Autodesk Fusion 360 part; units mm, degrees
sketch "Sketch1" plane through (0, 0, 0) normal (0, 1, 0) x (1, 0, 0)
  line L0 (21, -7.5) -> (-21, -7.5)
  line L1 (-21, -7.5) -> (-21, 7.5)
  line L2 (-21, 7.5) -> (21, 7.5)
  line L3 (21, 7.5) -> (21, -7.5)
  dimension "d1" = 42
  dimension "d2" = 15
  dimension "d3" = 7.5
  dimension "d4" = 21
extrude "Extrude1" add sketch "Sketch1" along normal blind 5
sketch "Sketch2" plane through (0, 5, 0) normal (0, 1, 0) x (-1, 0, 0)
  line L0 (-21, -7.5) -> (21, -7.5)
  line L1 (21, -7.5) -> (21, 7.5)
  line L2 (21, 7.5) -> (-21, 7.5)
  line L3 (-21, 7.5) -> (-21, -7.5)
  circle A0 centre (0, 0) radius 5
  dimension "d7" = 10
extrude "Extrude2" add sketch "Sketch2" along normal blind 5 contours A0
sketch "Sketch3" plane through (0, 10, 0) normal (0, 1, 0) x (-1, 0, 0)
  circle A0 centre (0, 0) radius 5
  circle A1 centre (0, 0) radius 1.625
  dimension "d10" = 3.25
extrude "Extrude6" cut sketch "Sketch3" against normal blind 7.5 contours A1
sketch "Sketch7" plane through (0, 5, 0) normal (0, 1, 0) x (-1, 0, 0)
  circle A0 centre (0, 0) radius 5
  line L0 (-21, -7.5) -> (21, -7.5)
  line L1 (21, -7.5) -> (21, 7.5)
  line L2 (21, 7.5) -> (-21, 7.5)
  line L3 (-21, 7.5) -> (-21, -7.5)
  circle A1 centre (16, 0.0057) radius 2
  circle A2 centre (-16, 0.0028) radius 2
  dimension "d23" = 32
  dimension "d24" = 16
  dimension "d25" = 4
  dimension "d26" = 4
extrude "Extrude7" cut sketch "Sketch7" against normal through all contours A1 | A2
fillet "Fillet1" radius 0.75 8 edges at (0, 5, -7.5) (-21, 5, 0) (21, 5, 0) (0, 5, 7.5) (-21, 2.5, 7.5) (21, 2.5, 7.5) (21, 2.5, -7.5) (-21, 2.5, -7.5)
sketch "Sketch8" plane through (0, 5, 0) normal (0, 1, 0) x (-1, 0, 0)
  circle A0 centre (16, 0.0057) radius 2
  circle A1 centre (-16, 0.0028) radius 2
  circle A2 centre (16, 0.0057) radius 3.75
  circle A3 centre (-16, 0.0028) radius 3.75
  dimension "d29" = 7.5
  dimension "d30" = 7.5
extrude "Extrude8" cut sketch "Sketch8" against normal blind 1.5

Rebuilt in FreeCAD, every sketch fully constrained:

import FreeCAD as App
import Part
import Sketcher

V = App.Vector


def edges_at(feature, points):
    """Names of the edges that pass closest to the given points."""
    edges = feature.Shape.Edges
    near = lambda p: min(range(len(edges)), key=lambda i: edges[i].distToShape(Part.Vertex(*p))[0])
    return sorted({f"Edge{near(p) + 1}" for p in points})


def add_polygon(sketch, points):
    """Adds a closed chain of lines whose ends are joined by coincident constraints."""
    first, n = sketch.GeometryCount, len(points)
    for a, b in zip(points, points[1:] + points[:1]):
        sketch.addGeometry(Part.LineSegment(App.Vector(*a, 0), App.Vector(*b, 0)), False)
    for i in range(n):
        sketch.addConstraint(Sketcher.Constraint("Coincident", first + i, 2, first + (i + 1) % n, 1))

doc = App.newDocument("Part")
body = doc.addObject("PartDesign::Body", "Body")

sketch1 = body.newObject("Sketcher::SketchObject", "Sketch")
sketch1.AttachmentSupport = (doc.getObject("XZ_Plane"), [""])
sketch1.MapMode = "FlatFace"
add_polygon(sketch1, [(-21, 8), (21, 8), (21, -8), (-21, -8)])
sketch1.addConstraint([
    Sketcher.Constraint("Horizontal", 0),
    Sketcher.Constraint("Vertical", 1),
    Sketcher.Constraint("Horizontal", 2),
    Sketcher.Constraint("Vertical", 3),
    Sketcher.Constraint("Symmetric", 0, 2, 2, 2, -1, 1),
    Sketcher.Constraint("DistanceX", 0, 1, 0, 2, 42.0),
    Sketcher.Constraint("DistanceY", 1, 2, 1, 1, 15.0),
])
pad1 = body.newObject("PartDesign::Pad", "Pad")
pad1.Profile = sketch1
pad1.Length = 5
pad1.Reversed = True

sketch2 = body.newObject("Sketcher::SketchObject", "Sketch001")
sketch2.AttachmentSupport = (doc.getObject("XZ_Plane"), [""])
sketch2.MapMode = "FlatFace"
sketch2.AttachmentOffset = App.Placement(V(0, 0, -5), App.Rotation())
sketch2.addGeometry(Part.Circle(V(0, 0, 0), V(0, 0, 1), 5), False)
sketch2.addConstraint([
    Sketcher.Constraint("Coincident", 0, 3, -1, 1),
    Sketcher.Constraint("Diameter", 0, 10.0),
])
pad2 = body.newObject("PartDesign::Pad", "Pad001")
pad2.Profile = sketch2
pad2.Length = 5
pad2.Reversed = True

sketch3 = body.newObject("Sketcher::SketchObject", "Sketch002")
sketch3.AttachmentSupport = (doc.getObject("XZ_Plane"), [""])
sketch3.MapMode = "FlatFace"
sketch3.AttachmentOffset = App.Placement(V(0, 0, -10), App.Rotation())
sketch3.addGeometry(Part.Circle(V(0, 0, 0), V(0, 0, 1), 1.6), False)
sketch3.addConstraint([
    Sketcher.Constraint("Coincident", 0, 3, -1, 1),
    Sketcher.Constraint("Diameter", 0, 3.25),
])
pocket1 = body.newObject("PartDesign::Pocket", "Pocket")
pocket1.Profile = sketch3
pocket1.Length = 7.5
pocket1.Reversed = True

sketch4 = body.newObject("Sketcher::SketchObject", "Sketch003")
sketch4.AttachmentSupport = (doc.getObject("XZ_Plane"), [""])
sketch4.MapMode = "FlatFace"
sketch4.AttachmentOffset = App.Placement(V(0, 0, -5), App.Rotation())
sketch4.addGeometry([
    Part.Circle(V(-16, 0, 0), V(0, 0, 1), 2),
    Part.Circle(V(16, 0, 0), V(0, 0, 1), 2),
], False)
sketch4.addConstraint([
    Sketcher.Constraint("Equal", 0, 1),
    Sketcher.Constraint("Diameter", 0, 4.0),
    Sketcher.Constraint("DistanceX", 0, 3, -1, 1, 16.0),
    Sketcher.Constraint("DistanceX", -1, 1, 1, 3, 16.0),
    Sketcher.Constraint("DistanceY", 1, 3, 0, 3, 0.003),
    Sketcher.Constraint("DistanceY", -1, 1, 0, 3, 0.0057),
])
pocket2 = body.newObject("PartDesign::Pocket", "Pocket001")
pocket2.Profile = sketch4
pocket2.Type = "ThroughAll"
pocket2.Reversed = True
doc.recompute()

fillet = body.newObject("PartDesign::Fillet", "Fillet")
fillet.Base = (pocket2, edges_at(pocket2, [
    (0, 5, -7.5),
    (-21, 5, 0),
    (21, 5, 0),
    (0, 5, 7.5),
    (-21, 2.5, 7.5),
    (21, 2.5, 7.5),
    (21, 2.5, -7.5),
    (-21, 2.5, -7.5),
]))
fillet.Radius = 0.75

sketch5 = body.newObject("Sketcher::SketchObject", "Sketch004")
sketch5.AttachmentSupport = (doc.getObject("XZ_Plane"), [""])
sketch5.MapMode = "FlatFace"
sketch5.AttachmentOffset = App.Placement(V(0, 0, -5), App.Rotation())
sketch5.addGeometry([
    Part.Circle(V(-16, 0, 0), V(0, 0, 1), 3.8),
    Part.Circle(V(-16, 0, 0), V(0, 0, 1), 2),
    Part.Circle(V(16, 0, 0), V(0, 0, 1), 3.8),
    Part.Circle(V(16, 0, 0), V(0, 0, 1), 2),
], False)
sketch5.addConstraint([
    Sketcher.Constraint("Coincident", 1, 3, 0, 3),
    Sketcher.Constraint("Coincident", 3, 3, 2, 3),
    Sketcher.Constraint("Equal", 0, 2),
    Sketcher.Constraint("Equal", 1, 3),
    Sketcher.Constraint("Diameter", 0, 7.5),
    Sketcher.Constraint("Diameter", 1, 4.0),
    Sketcher.Constraint("DistanceX", 0, 3, -1, 1, 16.0),
    Sketcher.Constraint("DistanceX", -1, 1, 2, 3, 16.0),
    Sketcher.Constraint("DistanceY", 2, 3, 0, 3, 0.003),
    Sketcher.Constraint("DistanceY", -1, 1, 0, 3, 0.0057),
])
pocket3 = body.newObject("PartDesign::Pocket", "Pocket002")
pocket3.Profile = sketch5
pocket3.Length = 1.5
pocket3.Reversed = True

doc.recompute()
